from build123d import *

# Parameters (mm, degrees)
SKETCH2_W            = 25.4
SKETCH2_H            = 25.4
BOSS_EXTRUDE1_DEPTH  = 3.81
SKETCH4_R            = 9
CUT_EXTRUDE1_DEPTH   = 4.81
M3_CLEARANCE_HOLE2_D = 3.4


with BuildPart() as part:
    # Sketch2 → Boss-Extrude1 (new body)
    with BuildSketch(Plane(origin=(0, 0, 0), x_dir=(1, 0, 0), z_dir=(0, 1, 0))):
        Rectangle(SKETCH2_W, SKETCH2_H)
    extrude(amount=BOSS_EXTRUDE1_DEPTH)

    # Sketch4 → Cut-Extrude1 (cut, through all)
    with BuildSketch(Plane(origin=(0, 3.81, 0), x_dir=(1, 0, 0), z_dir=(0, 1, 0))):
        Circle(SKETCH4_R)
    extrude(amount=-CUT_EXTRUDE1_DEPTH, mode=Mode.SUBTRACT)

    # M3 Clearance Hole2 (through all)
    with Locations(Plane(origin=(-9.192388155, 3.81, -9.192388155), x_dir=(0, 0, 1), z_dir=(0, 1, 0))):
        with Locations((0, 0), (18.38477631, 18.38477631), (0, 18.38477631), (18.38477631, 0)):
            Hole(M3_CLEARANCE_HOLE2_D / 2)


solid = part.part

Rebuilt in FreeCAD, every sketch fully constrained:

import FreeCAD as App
import Part
import Sketcher
Q = App.Units.Quantity

doc = App.newDocument("Part")
body = doc.addObject("PartDesign::Body", "Body")

# Sketch on XZ plane
sketch1 = body.newObject("Sketcher::SketchObject", "Sketch")
sketch1.AttachmentSupport = (doc.getObject("XZ_Plane"), [""])
sketch1.MapMode = "FlatFace"
sketch1.addGeometry([
    Part.LineSegment(App.Vector(-12.7, -12.7, 0), App.Vector(-12.7, 12.7, 0)),
    Part.LineSegment(App.Vector(-12.7, 12.7, 0), App.Vector(12.7, 12.7, 0)),
    Part.LineSegment(App.Vector(12.7, 12.7, 0), App.Vector(12.7, -12.7, 0)),
    Part.LineSegment(App.Vector(12.7, -12.7, 0), App.Vector(-12.7, -12.7, 0)),
], False)
sketch1.addConstraint([
    Sketcher.Constraint("Coincident", 0, 2, 1, 1),
    Sketcher.Constraint("Coincident", 1, 2, 2, 1),
    Sketcher.Constraint("Coincident", 2, 2, 3, 1),
    Sketcher.Constraint("Coincident", 3, 2, 0, 1),
    Sketcher.Constraint("Vertical", 0),
    Sketcher.Constraint("Horizontal", 1),
    Sketcher.Constraint("Vertical", 2),
    Sketcher.Constraint("Horizontal", 3),
    Sketcher.Constraint("Symmetric", 0, 2, 2, 2, -1, 1),
    Sketcher.Constraint("Equal", 3, 0),
    Sketcher.Constraint("DistanceX", 1, 1, 1, 2, Q("25.4 mm")),
])
pad1 = body.newObject("PartDesign::Pad", "Pad")
pad1.Profile = sketch1
pad1.Length = 3.81
pad1.Reversed = True

# Sketch on XZ plane
sketch2 = body.newObject("Sketcher::SketchObject", "Sketch001")
sketch2.AttachmentSupport = (doc.getObject("XZ_Plane"), [""])
sketch2.MapMode = "FlatFace"
sketch2.AttachmentOffset = App.Placement(App.Vector(0, 0, -3.81), App.Rotation())
sketch2.addGeometry(Part.Circle(App.Vector(0, 0, 0), App.Vector(0, 0, 1), 9), False)
sketch2.addConstraint([
    Sketcher.Constraint("Coincident", 0, 3, -1, 1),
    Sketcher.Constraint("Diameter", 0, Q("18 mm")),
])
pocket1 = body.newObject("PartDesign::Pocket", "Pocket")
pocket1.Profile = sketch2
pocket1.Type = "ThroughAll"
pocket1.Reversed = True

# Sketch on XZ plane
sketch3 = body.newObject("Sketcher::SketchObject", "Sketch002")
sketch3.AttachmentSupport = (doc.getObject("XZ_Plane"), [""])
sketch3.MapMode = "FlatFace"
sketch3.AttachmentOffset = App.Placement(App.Vector(0, 0, -3.81), App.Rotation())
sketch3.addGeometry([
    Part.Circle(App.Vector(-9.192388, -9.192388, 0), App.Vector(0, 0, 1), 1.7),
    Part.Circle(App.Vector(9.192388, 9.192388, 0), App.Vector(0, 0, 1), 1.7),
    Part.Circle(App.Vector(9.192388, -9.192388, 0), App.Vector(0, 0, 1), 1.7),
    Part.Circle(App.Vector(-9.192388, 9.192388, 0), App.Vector(0, 0, 1), 1.7),
], False)
sketch3.addConstraint([
    Sketcher.Constraint("Equal", 0, 1),
    Sketcher.Constraint("Equal", 1, 2),
    Sketcher.Constraint("Equal", 2, 3),
    Sketcher.Constraint("Symmetric", 0, 3, 1, 3, -1, 1),
    Sketcher.Constraint("Symmetric", 2, 3, 3, 3, -1, 1),
    Sketcher.Constraint("Symmetric", 0, 3, 2, 3, -2),
    Sketcher.Constraint("Diameter", 0, Q("3.4 mm")),
    Sketcher.Constraint("DistanceX", 0, 3, -1, 1, Q("9.192388 mm")),
    Sketcher.Constraint("DistanceY", 0, 3, -1, 1, Q("9.192388 mm")),
])
doc.recompute()
hole = body.newObject("PartDesign::Hole", "Hole")
hole.Profile = sketch3
hole.ThreadType = "None"
hole.Diameter = 3.4
hole.DepthType = "ThroughAll"
hole.Reversed = True

doc.recompute()
